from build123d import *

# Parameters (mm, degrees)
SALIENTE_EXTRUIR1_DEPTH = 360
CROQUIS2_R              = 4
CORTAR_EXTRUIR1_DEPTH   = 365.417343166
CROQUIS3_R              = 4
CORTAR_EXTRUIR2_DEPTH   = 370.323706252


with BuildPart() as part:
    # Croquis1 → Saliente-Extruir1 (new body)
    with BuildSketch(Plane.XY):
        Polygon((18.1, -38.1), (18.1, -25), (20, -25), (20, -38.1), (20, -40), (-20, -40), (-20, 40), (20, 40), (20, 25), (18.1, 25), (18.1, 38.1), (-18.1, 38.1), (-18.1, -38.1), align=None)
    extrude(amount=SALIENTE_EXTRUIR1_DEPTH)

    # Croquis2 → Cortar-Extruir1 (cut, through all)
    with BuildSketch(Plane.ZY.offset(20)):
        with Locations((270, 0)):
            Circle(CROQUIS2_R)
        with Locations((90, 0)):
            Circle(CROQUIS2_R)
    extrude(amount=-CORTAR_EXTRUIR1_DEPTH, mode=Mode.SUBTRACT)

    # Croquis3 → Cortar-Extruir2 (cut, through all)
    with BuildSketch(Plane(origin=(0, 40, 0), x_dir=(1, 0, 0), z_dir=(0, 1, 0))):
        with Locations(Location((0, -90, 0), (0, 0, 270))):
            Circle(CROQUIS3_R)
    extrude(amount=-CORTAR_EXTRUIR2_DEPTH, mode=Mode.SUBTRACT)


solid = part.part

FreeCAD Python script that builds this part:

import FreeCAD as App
import Part
import Sketcher

V = App.Vector


def add_polygon(sketch, points):
    """Adds a closed chain of lines whose ends are joined by coincident constraints."""
    first, n = sketch.GeometryCount, len(points)
    for a, b in zip(points, points[1:] + points[:1]):
        sketch.addGeometry(Part.LineSegment(App.Vector(*a, 0), App.Vector(*b, 0)), False)
    for i in range(n):
        sketch.addConstraint(Sketcher.Constraint("Coincident", first + i, 2, first + (i + 1) % n, 1))

doc = App.newDocument("Part")
params = doc.addObject("Spreadsheet::Sheet", "Params")
for row, (alias, value) in enumerate([
    ("sketch1_width", "40 mm"),
    ("sketch1_height", "15 mm"),
    ("sketch1_height2", "80 mm"),
    ("sketch1_width2", "36.2 mm"),
    ("sketch1_height3", "13.1 mm"),
    ("pad1_length", "360 mm"),
    ("sketch2_diameter", "8 mm"),
    ("sketch3_diameter", "8 mm"),
], start=1):
    params.set(f"A{row}", alias)
    params.set(f"B{row}", "=" + value)
    params.setAlias(f"B{row}", alias)

body = doc.addObject("PartDesign::Body", "Body")

sketch1 = body.newObject("Sketcher::SketchObject", "Sketch")
sketch1.AttachmentSupport = (doc.getObject("XY_Plane"), [""])
sketch1.MapMode = "FlatFace"
add_polygon(sketch1, [(18.1, -25), (18.1, -38.1), (-18.1, -38.1), (-18.1, 38.1), (18.1, 38.1), (18.1, 25), (20, 25), (20, 40), (-20, 40), (-20, -40), (20, -40), (20, -25)])
sketch1.addConstraint(Sketcher.Constraint("Vertical", 0))
sketch1.addConstraint(Sketcher.Constraint("Horizontal", 1))
sketch1.addConstraint(Sketcher.Constraint("Vertical", 2))
sketch1.addConstraint(Sketcher.Constraint("Horizontal", 3))
sketch1.addConstraint(Sketcher.Constraint("Vertical", 4))
sketch1.addConstraint(Sketcher.Constraint("Horizontal", 5))
sketch1.addConstraint(Sketcher.Constraint("Vertical", 6))
sketch1.addConstraint(Sketcher.Constraint("Horizontal", 7))
sketch1.addConstraint(Sketcher.Constraint("Vertical", 8))
sketch1.addConstraint(Sketcher.Constraint("Horizontal", 9))
sketch1.addConstraint(Sketcher.Constraint("Vertical", 10))
sketch1.addConstraint(Sketcher.Constraint("Horizontal", 11))
sketch1.addConstraint(Sketcher.Constraint("Symmetric", 0, 2, 2, 2, -1, 1))
sketch1.addConstraint(Sketcher.Constraint("Symmetric", 6, 2, 8, 2, -1, 1))
sketch1.addConstraint(Sketcher.Constraint("Symmetric", 5, 2, 10, 2, -1))
sketch1.addConstraint(Sketcher.Constraint("Vertical", 0, 2, 3, 2))
sketch1.addConstraint(Sketcher.Constraint("DistanceX", 7, 2, 7, 1, 40.0))
sketch1.addConstraint(Sketcher.Constraint("DistanceY", 6, 1, 6, 2, 15.0))
sketch1.addConstraint(Sketcher.Constraint("DistanceY", 8, 2, 8, 1, 80.0))
sketch1.addConstraint(Sketcher.Constraint("DistanceX", 1, 2, 1, 1, 36.2))
sketch1.addConstraint(Sketcher.Constraint("DistanceY", 0, 2, 0, 1, 13.1))
sketch1.setExpression("Constraints[28]", "Params.sketch1_width")
sketch1.setExpression("Constraints[29]", "Params.sketch1_height")
sketch1.setExpression("Constraints[30]", "Params.sketch1_height2")
sketch1.setExpression("Constraints[31]", "Params.sketch1_width2")
sketch1.setExpression("Constraints[32]", "Params.sketch1_height3")
pad1 = body.newObject("PartDesign::Pad", "Pad")
pad1.Profile = sketch1
pad1.setExpression("Length", "Params.pad1_length")

sketch2 = body.newObject("Sketcher::SketchObject", "Sketch001")
sketch2.AttachmentSupport = (doc.getObject("YZ_Plane"), [""])
sketch2.MapMode = "FlatFace"
sketch2.AttachmentOffset = App.Placement(V(0, 0, -20), App.Rotation())
sketch2.addGeometry(Part.Circle(V(0, 270, 0), V(0, 0, 1), 4), False)
sketch2.addGeometry(Part.Circle(V(0, 90, 0), V(0, 0, 1), 4), False)
sketch2.addConstraint(Sketcher.Constraint("Equal", 0, 1))
sketch2.addConstraint(Sketcher.Constraint("PointOnObject", 0, 3, -2))
sketch2.addConstraint(Sketcher.Constraint("PointOnObject", 1, 3, -2))
sketch2.addConstraint(Sketcher.Constraint("Diameter", 0, 8.0))
sketch2.addConstraint(Sketcher.Constraint("DistanceY", -1, 1, 0, 3, 270.0))
sketch2.addConstraint(Sketcher.Constraint("DistanceY", -1, 1, 1, 3, 90.0))
sketch2.setExpression("Constraints[3]", "Params.sketch2_diameter")
pocket1 = body.newObject("PartDesign::Pocket", "Pocket")
pocket1.Profile = sketch2
pocket1.Type = "ThroughAll"
pocket1.Reversed = True

sketch3 = body.newObject("Sketcher::SketchObject", "Sketch002")
sketch3.AttachmentSupport = (doc.getObject("XZ_Plane"), [""])
sketch3.MapMode = "FlatFace"
sketch3.AttachmentOffset = App.Placement(V(0, 0, -40), App.Rotation())
sketch3.addGeometry(Part.Circle(V(0, 90, 0), V(0, 0, 1), 4), False)
sketch3.addConstraint(Sketcher.Constraint("PointOnObject", 0, 3, -2))
sketch3.addConstraint(Sketcher.Constraint("Diameter", 0, 8.0))
sketch3.addConstraint(Sketcher.Constraint("DistanceY", -1, 1, 0, 3, 90.0))
sketch3.setExpression("Constraints[1]", "Params.sketch3_diameter")
pocket2 = body.newObject("PartDesign::Pocket", "Pocket001")
pocket2.Profile = sketch3
pocket2.Type = "ThroughAll"
pocket2.Reversed = True

doc.recompute()
